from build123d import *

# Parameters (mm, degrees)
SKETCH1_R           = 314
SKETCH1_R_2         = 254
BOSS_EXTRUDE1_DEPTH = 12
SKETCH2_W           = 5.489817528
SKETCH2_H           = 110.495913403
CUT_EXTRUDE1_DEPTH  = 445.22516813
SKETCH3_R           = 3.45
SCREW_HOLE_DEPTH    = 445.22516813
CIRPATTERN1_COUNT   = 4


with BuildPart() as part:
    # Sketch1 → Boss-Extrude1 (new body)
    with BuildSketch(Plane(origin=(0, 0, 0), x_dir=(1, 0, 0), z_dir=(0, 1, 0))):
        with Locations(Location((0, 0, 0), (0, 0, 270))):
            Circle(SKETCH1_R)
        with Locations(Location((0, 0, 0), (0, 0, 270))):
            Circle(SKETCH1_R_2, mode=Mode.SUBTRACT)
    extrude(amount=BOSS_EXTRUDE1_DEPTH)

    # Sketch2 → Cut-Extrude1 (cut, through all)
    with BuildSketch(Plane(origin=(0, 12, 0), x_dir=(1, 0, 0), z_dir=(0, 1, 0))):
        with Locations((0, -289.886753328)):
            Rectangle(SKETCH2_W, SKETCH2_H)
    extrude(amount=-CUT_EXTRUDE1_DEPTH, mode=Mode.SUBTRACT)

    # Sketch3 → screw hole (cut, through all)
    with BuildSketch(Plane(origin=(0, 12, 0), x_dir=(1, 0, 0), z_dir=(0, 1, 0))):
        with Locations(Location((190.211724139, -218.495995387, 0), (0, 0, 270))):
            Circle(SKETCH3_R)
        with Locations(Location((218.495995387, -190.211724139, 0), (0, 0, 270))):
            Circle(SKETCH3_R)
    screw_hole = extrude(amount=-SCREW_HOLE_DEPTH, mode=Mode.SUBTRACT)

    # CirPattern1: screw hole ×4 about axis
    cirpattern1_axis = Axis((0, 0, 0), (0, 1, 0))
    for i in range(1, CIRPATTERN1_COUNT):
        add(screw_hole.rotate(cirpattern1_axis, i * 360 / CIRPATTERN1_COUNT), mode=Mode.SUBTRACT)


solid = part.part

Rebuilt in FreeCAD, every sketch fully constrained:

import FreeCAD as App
import Part
import Sketcher
from FreeCAD import Vector


def add_polygon(sketch, points):
    """Adds a closed chain of lines whose ends are joined by coincident constraints."""
    first, n = sketch.GeometryCount, len(points)
    for a, b in zip(points, points[1:] + points[:1]):
        sketch.addGeometry(Part.LineSegment(App.Vector(*a, 0), App.Vector(*b, 0)), False)
    for i in range(n):
        sketch.addConstraint(Sketcher.Constraint("Coincident", first + i, 2, first + (i + 1) % n, 1))

doc = App.newDocument("Part")
params = doc.addObject("Spreadsheet::Sheet", "Params")
for row, (alias, value) in enumerate([
    ("sketch1_diameter", "628 mm"),
    ("sketch1_diameter2", "508 mm"),
    ("pad1_length", "12 mm"),
    ("sketch3_diameter", "6.9 mm"),
], start=1):
    params.set(f"A{row}", alias)
    params.set(f"B{row}", "=" + value)
    params.setAlias(f"B{row}", alias)

body = doc.addObject("PartDesign::Body", "Body")

sketch1 = body.newObject("Sketcher::SketchObject", "Sketch")
sketch1.AttachmentSupport = (doc.getObject("XZ_Plane"), [""])
sketch1.MapMode = "FlatFace"
sketch1.addGeometry([
    Part.Circle(Vector(0, 0, 0), Vector(0, 0, 1), 314),
    Part.Circle(Vector(0, 0, 0), Vector(0, 0, 1), 254),
], False)
sketch1.addConstraint([
    Sketcher.Constraint("Coincident", 0, 3, -1, 1),
    Sketcher.Constraint("Coincident", 1, 3, -1, 1),
    Sketcher.Constraint("Diameter", 0, 628.0),
    Sketcher.Constraint("Diameter", 1, 508.0),
])
sketch1.setExpression("Constraints[2]", "Params.sketch1_diameter")
sketch1.setExpression("Constraints[3]", "Params.sketch1_diameter2")
pad1 = body.newObject("PartDesign::Pad", "Pad")
pad1.Profile = sketch1
pad1.setExpression("Length", "Params.pad1_length")
pad1.Reversed = True

sketch2 = body.newObject("Sketcher::SketchObject", "Sketch001")
sketch2.AttachmentSupport = (doc.getObject("XZ_Plane"), [""])
sketch2.MapMode = "FlatFace"
sketch2.AttachmentOffset = App.Placement(Vector(0, 0, -12), App.Rotation())
add_polygon(sketch2, [(-3, 235), (-3, 345), (3, 345), (3, 235)])
sketch2.addConstraint([
    Sketcher.Constraint("Vertical", 0),
    Sketcher.Constraint("Horizontal", 1),
    Sketcher.Constraint("Vertical", 2),
    Sketcher.Constraint("Horizontal", 3),
    Sketcher.Constraint("DistanceX", 1, 1, 1, 2, 5.489818),
    Sketcher.Constraint("DistanceY", 0, 1, 0, 2, 110.495913),
    Sketcher.Constraint("DistanceX", 0, 2, -1, 1, 2.744909),
    Sketcher.Constraint("DistanceY", -1, 1, 0, 2, 345.13471),
])
pocket1 = body.newObject("PartDesign::Pocket", "Pocket")
pocket1.Profile = sketch2
pocket1.Type = "ThroughAll"
pocket1.Reversed = True

sketch3 = body.newObject("Sketcher::SketchObject", "Sketch002")
sketch3.AttachmentSupport = (doc.getObject("XZ_Plane"), [""])
sketch3.MapMode = "FlatFace"
sketch3.AttachmentOffset = App.Placement(Vector(0, 0, -12), App.Rotation())
sketch3.addGeometry([
    Part.Circle(Vector(190.2, 218.5, 0), Vector(0, 0, 1), 3.5),
    Part.Circle(Vector(218.5, 190.2, 0), Vector(0, 0, 1), 3.5),
], False)
sketch3.addConstraint([
    Sketcher.Constraint("Equal", 0, 1),
    Sketcher.Constraint("Diameter", 0, 6.9),
    Sketcher.Constraint("DistanceX", 0, 3, 1, 3, 28.284271),
    Sketcher.Constraint("DistanceY", 1, 3, 0, 3, 28.284271),
    Sketcher.Constraint("DistanceX", -1, 1, 0, 3, 190.211724),
    Sketcher.Constraint("DistanceY", -1, 1, 0, 3, 218.495995),
])
sketch3.setExpression("Constraints[1]", "Params.sketch3_diameter")
pocket2 = body.newObject("PartDesign::Pocket", "Pocket001")
pocket2.Profile = sketch3
pocket2.Type = "ThroughAll"
pocket2.Reversed = True
doc.recompute()

polarpattern = body.newObject("PartDesign::PolarPattern", "PolarPattern")
polarpattern.Originals = [pocket2]
polarpattern.Axis = (doc.getObject("Y_Axis"), [""])
polarpattern.Angle = 360
polarpattern.Occurrences = 4
body.Tip = polarpattern

doc.recompute()
